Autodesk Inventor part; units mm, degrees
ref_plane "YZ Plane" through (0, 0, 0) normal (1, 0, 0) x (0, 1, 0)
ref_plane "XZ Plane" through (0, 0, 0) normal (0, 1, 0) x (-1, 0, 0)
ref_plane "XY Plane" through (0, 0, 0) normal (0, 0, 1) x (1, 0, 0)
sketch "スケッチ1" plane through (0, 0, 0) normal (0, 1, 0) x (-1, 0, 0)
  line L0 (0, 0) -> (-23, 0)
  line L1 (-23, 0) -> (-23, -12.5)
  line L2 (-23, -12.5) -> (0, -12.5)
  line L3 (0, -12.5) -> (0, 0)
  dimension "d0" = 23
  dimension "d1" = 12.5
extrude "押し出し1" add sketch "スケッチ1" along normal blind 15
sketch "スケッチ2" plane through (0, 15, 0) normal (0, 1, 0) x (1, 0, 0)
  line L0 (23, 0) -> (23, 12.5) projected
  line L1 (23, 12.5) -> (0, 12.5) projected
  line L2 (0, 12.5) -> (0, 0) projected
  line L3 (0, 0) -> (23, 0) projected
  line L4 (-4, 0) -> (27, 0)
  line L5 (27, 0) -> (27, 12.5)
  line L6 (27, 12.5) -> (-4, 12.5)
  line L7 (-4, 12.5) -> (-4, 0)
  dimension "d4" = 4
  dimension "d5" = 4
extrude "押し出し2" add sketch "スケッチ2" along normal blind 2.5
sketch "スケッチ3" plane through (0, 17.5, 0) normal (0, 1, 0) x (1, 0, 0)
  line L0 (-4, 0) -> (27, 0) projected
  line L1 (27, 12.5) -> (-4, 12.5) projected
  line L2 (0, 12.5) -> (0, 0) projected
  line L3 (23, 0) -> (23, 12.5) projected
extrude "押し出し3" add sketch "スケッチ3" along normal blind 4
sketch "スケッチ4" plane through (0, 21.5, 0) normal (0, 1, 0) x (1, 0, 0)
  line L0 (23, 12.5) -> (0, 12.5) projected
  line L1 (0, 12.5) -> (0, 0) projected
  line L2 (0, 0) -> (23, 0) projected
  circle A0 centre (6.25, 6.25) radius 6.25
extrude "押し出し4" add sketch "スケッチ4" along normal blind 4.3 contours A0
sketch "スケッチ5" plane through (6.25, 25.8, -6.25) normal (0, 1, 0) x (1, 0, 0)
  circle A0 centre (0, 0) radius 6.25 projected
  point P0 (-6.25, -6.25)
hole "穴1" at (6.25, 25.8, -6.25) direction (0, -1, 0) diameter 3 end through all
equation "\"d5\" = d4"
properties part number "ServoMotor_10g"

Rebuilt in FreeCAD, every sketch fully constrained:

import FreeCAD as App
import Part
import Sketcher
from FreeCAD import Vector


def add_polygon(sketch, points):
    """Adds a closed chain of lines whose ends are joined by coincident constraints."""
    first, n = sketch.GeometryCount, len(points)
    for a, b in zip(points, points[1:] + points[:1]):
        sketch.addGeometry(Part.LineSegment(App.Vector(*a, 0), App.Vector(*b, 0)), False)
    for i in range(n):
        sketch.addConstraint(Sketcher.Constraint("Coincident", first + i, 2, first + (i + 1) % n, 1))

doc = App.newDocument("Part")
body = doc.addObject("PartDesign::Body", "Body")

sketch1 = body.newObject("Sketcher::SketchObject", "Sketch")
sketch1.AttachmentSupport = (doc.getObject("XZ_Plane"), [""])
sketch1.MapMode = "FlatFace"
add_polygon(sketch1, [(0, -12), (0, 0), (23, 0), (23, -12)])
sketch1.addConstraint([
    Sketcher.Constraint("Vertical", 0),
    Sketcher.Constraint("Horizontal", 1),
    Sketcher.Constraint("Vertical", 2),
    Sketcher.Constraint("Horizontal", 3),
    Sketcher.Constraint("Coincident", 0, 2, -1, 1),
    Sketcher.Constraint("DistanceX", 1, 1, 1, 2, 23.0),
    Sketcher.Constraint("DistanceY", 0, 1, 0, 2, 12.5),
])
pad1 = body.newObject("PartDesign::Pad", "Pad")
pad1.Profile = sketch1
pad1.Length = 15
pad1.Reversed = True

sketch2 = body.newObject("Sketcher::SketchObject", "Sketch001")
sketch2.AttachmentSupport = (doc.getObject("XZ_Plane"), [""])
sketch2.MapMode = "FlatFace"
sketch2.AttachmentOffset = App.Placement(Vector(0, 0, -15), App.Rotation())
add_polygon(sketch2, [(27, 0), (27, -12), (-4, -12), (-4, 0)])
sketch2.addConstraint([
    Sketcher.Constraint("Vertical", 0),
    Sketcher.Constraint("Horizontal", 1),
    Sketcher.Constraint("Vertical", 2),
    Sketcher.Constraint("Horizontal", 3),
    Sketcher.Constraint("PointOnObject", 2, 2, -1),
    Sketcher.Constraint("DistanceX", 1, 2, -1, 1, 4.0),
    Sketcher.Constraint("DistanceX", 1, 2, 1, 1, 31.0),
    Sketcher.Constraint("DistanceY", 0, 2, 0, 1, 12.5),
])
pad2 = body.newObject("PartDesign::Pad", "Pad001")
pad2.Profile = sketch2
pad2.Length = 2.5
pad2.Reversed = True

sketch3 = body.newObject("Sketcher::SketchObject", "Sketch002")
sketch3.AttachmentSupport = (doc.getObject("XZ_Plane"), [""])
sketch3.MapMode = "FlatFace"
sketch3.AttachmentOffset = App.Placement(Vector(0, 0, -17.5), App.Rotation())
add_polygon(sketch3, [(0, -12), (0, 0), (23, 0), (23, -12)])
sketch3.addConstraint([
    Sketcher.Constraint("Vertical", 0),
    Sketcher.Constraint("Horizontal", 1),
    Sketcher.Constraint("Vertical", 2),
    Sketcher.Constraint("Horizontal", 3),
    Sketcher.Constraint("Coincident", 0, 2, -1, 1),
    Sketcher.Constraint("DistanceX", 1, 1, 1, 2, 23.0),
    Sketcher.Constraint("DistanceY", 0, 1, 0, 2, 12.5),
])
pad3 = body.newObject("PartDesign::Pad", "Pad002")
pad3.Profile = sketch3
pad3.Length = 4
pad3.Reversed = True

sketch4 = body.newObject("Sketcher::SketchObject", "Sketch003")
sketch4.AttachmentSupport = (doc.getObject("XZ_Plane"), [""])
sketch4.MapMode = "FlatFace"
sketch4.AttachmentOffset = App.Placement(Vector(0, 0, -21.5), App.Rotation())
sketch4.addGeometry(Part.Circle(Vector(6, -6, 0), Vector(0, 0, 1), 6), False)
sketch4.addConstraint([
    Sketcher.Constraint("Diameter", 0, 12.5),
    Sketcher.Constraint("DistanceX", -1, 1, 0, 3, 6.25),
    Sketcher.Constraint("DistanceY", 0, 3, -1, 1, 6.25),
])
pad4 = body.newObject("PartDesign::Pad", "Pad003")
pad4.Profile = sketch4
pad4.Length = 4.3
pad4.Reversed = True

sketch5 = body.newObject("Sketcher::SketchObject", "Sketch004")
sketch5.AttachmentSupport = (doc.getObject("XZ_Plane"), [""])
sketch5.MapMode = "FlatFace"
sketch5.AttachmentOffset = App.Placement(Vector(0, 0, -25.8), App.Rotation())
sketch5.addGeometry(Part.Circle(Vector(6.2, -6.2, 0), Vector(0, 0, 1), 1.5), False)
sketch5.addConstraint([
    Sketcher.Constraint("Diameter", 0, 3.0),
    Sketcher.Constraint("DistanceX", -1, 1, 0, 3, 6.25),
    Sketcher.Constraint("DistanceY", 0, 3, -1, 1, 6.25),
])
doc.recompute()
hole = body.newObject("PartDesign::Hole", "Hole")
hole.Profile = sketch5
hole.ThreadType = "None"
hole.Diameter = 3
hole.DepthType = "ThroughAll"
hole.Reversed = True

doc.recompute()
